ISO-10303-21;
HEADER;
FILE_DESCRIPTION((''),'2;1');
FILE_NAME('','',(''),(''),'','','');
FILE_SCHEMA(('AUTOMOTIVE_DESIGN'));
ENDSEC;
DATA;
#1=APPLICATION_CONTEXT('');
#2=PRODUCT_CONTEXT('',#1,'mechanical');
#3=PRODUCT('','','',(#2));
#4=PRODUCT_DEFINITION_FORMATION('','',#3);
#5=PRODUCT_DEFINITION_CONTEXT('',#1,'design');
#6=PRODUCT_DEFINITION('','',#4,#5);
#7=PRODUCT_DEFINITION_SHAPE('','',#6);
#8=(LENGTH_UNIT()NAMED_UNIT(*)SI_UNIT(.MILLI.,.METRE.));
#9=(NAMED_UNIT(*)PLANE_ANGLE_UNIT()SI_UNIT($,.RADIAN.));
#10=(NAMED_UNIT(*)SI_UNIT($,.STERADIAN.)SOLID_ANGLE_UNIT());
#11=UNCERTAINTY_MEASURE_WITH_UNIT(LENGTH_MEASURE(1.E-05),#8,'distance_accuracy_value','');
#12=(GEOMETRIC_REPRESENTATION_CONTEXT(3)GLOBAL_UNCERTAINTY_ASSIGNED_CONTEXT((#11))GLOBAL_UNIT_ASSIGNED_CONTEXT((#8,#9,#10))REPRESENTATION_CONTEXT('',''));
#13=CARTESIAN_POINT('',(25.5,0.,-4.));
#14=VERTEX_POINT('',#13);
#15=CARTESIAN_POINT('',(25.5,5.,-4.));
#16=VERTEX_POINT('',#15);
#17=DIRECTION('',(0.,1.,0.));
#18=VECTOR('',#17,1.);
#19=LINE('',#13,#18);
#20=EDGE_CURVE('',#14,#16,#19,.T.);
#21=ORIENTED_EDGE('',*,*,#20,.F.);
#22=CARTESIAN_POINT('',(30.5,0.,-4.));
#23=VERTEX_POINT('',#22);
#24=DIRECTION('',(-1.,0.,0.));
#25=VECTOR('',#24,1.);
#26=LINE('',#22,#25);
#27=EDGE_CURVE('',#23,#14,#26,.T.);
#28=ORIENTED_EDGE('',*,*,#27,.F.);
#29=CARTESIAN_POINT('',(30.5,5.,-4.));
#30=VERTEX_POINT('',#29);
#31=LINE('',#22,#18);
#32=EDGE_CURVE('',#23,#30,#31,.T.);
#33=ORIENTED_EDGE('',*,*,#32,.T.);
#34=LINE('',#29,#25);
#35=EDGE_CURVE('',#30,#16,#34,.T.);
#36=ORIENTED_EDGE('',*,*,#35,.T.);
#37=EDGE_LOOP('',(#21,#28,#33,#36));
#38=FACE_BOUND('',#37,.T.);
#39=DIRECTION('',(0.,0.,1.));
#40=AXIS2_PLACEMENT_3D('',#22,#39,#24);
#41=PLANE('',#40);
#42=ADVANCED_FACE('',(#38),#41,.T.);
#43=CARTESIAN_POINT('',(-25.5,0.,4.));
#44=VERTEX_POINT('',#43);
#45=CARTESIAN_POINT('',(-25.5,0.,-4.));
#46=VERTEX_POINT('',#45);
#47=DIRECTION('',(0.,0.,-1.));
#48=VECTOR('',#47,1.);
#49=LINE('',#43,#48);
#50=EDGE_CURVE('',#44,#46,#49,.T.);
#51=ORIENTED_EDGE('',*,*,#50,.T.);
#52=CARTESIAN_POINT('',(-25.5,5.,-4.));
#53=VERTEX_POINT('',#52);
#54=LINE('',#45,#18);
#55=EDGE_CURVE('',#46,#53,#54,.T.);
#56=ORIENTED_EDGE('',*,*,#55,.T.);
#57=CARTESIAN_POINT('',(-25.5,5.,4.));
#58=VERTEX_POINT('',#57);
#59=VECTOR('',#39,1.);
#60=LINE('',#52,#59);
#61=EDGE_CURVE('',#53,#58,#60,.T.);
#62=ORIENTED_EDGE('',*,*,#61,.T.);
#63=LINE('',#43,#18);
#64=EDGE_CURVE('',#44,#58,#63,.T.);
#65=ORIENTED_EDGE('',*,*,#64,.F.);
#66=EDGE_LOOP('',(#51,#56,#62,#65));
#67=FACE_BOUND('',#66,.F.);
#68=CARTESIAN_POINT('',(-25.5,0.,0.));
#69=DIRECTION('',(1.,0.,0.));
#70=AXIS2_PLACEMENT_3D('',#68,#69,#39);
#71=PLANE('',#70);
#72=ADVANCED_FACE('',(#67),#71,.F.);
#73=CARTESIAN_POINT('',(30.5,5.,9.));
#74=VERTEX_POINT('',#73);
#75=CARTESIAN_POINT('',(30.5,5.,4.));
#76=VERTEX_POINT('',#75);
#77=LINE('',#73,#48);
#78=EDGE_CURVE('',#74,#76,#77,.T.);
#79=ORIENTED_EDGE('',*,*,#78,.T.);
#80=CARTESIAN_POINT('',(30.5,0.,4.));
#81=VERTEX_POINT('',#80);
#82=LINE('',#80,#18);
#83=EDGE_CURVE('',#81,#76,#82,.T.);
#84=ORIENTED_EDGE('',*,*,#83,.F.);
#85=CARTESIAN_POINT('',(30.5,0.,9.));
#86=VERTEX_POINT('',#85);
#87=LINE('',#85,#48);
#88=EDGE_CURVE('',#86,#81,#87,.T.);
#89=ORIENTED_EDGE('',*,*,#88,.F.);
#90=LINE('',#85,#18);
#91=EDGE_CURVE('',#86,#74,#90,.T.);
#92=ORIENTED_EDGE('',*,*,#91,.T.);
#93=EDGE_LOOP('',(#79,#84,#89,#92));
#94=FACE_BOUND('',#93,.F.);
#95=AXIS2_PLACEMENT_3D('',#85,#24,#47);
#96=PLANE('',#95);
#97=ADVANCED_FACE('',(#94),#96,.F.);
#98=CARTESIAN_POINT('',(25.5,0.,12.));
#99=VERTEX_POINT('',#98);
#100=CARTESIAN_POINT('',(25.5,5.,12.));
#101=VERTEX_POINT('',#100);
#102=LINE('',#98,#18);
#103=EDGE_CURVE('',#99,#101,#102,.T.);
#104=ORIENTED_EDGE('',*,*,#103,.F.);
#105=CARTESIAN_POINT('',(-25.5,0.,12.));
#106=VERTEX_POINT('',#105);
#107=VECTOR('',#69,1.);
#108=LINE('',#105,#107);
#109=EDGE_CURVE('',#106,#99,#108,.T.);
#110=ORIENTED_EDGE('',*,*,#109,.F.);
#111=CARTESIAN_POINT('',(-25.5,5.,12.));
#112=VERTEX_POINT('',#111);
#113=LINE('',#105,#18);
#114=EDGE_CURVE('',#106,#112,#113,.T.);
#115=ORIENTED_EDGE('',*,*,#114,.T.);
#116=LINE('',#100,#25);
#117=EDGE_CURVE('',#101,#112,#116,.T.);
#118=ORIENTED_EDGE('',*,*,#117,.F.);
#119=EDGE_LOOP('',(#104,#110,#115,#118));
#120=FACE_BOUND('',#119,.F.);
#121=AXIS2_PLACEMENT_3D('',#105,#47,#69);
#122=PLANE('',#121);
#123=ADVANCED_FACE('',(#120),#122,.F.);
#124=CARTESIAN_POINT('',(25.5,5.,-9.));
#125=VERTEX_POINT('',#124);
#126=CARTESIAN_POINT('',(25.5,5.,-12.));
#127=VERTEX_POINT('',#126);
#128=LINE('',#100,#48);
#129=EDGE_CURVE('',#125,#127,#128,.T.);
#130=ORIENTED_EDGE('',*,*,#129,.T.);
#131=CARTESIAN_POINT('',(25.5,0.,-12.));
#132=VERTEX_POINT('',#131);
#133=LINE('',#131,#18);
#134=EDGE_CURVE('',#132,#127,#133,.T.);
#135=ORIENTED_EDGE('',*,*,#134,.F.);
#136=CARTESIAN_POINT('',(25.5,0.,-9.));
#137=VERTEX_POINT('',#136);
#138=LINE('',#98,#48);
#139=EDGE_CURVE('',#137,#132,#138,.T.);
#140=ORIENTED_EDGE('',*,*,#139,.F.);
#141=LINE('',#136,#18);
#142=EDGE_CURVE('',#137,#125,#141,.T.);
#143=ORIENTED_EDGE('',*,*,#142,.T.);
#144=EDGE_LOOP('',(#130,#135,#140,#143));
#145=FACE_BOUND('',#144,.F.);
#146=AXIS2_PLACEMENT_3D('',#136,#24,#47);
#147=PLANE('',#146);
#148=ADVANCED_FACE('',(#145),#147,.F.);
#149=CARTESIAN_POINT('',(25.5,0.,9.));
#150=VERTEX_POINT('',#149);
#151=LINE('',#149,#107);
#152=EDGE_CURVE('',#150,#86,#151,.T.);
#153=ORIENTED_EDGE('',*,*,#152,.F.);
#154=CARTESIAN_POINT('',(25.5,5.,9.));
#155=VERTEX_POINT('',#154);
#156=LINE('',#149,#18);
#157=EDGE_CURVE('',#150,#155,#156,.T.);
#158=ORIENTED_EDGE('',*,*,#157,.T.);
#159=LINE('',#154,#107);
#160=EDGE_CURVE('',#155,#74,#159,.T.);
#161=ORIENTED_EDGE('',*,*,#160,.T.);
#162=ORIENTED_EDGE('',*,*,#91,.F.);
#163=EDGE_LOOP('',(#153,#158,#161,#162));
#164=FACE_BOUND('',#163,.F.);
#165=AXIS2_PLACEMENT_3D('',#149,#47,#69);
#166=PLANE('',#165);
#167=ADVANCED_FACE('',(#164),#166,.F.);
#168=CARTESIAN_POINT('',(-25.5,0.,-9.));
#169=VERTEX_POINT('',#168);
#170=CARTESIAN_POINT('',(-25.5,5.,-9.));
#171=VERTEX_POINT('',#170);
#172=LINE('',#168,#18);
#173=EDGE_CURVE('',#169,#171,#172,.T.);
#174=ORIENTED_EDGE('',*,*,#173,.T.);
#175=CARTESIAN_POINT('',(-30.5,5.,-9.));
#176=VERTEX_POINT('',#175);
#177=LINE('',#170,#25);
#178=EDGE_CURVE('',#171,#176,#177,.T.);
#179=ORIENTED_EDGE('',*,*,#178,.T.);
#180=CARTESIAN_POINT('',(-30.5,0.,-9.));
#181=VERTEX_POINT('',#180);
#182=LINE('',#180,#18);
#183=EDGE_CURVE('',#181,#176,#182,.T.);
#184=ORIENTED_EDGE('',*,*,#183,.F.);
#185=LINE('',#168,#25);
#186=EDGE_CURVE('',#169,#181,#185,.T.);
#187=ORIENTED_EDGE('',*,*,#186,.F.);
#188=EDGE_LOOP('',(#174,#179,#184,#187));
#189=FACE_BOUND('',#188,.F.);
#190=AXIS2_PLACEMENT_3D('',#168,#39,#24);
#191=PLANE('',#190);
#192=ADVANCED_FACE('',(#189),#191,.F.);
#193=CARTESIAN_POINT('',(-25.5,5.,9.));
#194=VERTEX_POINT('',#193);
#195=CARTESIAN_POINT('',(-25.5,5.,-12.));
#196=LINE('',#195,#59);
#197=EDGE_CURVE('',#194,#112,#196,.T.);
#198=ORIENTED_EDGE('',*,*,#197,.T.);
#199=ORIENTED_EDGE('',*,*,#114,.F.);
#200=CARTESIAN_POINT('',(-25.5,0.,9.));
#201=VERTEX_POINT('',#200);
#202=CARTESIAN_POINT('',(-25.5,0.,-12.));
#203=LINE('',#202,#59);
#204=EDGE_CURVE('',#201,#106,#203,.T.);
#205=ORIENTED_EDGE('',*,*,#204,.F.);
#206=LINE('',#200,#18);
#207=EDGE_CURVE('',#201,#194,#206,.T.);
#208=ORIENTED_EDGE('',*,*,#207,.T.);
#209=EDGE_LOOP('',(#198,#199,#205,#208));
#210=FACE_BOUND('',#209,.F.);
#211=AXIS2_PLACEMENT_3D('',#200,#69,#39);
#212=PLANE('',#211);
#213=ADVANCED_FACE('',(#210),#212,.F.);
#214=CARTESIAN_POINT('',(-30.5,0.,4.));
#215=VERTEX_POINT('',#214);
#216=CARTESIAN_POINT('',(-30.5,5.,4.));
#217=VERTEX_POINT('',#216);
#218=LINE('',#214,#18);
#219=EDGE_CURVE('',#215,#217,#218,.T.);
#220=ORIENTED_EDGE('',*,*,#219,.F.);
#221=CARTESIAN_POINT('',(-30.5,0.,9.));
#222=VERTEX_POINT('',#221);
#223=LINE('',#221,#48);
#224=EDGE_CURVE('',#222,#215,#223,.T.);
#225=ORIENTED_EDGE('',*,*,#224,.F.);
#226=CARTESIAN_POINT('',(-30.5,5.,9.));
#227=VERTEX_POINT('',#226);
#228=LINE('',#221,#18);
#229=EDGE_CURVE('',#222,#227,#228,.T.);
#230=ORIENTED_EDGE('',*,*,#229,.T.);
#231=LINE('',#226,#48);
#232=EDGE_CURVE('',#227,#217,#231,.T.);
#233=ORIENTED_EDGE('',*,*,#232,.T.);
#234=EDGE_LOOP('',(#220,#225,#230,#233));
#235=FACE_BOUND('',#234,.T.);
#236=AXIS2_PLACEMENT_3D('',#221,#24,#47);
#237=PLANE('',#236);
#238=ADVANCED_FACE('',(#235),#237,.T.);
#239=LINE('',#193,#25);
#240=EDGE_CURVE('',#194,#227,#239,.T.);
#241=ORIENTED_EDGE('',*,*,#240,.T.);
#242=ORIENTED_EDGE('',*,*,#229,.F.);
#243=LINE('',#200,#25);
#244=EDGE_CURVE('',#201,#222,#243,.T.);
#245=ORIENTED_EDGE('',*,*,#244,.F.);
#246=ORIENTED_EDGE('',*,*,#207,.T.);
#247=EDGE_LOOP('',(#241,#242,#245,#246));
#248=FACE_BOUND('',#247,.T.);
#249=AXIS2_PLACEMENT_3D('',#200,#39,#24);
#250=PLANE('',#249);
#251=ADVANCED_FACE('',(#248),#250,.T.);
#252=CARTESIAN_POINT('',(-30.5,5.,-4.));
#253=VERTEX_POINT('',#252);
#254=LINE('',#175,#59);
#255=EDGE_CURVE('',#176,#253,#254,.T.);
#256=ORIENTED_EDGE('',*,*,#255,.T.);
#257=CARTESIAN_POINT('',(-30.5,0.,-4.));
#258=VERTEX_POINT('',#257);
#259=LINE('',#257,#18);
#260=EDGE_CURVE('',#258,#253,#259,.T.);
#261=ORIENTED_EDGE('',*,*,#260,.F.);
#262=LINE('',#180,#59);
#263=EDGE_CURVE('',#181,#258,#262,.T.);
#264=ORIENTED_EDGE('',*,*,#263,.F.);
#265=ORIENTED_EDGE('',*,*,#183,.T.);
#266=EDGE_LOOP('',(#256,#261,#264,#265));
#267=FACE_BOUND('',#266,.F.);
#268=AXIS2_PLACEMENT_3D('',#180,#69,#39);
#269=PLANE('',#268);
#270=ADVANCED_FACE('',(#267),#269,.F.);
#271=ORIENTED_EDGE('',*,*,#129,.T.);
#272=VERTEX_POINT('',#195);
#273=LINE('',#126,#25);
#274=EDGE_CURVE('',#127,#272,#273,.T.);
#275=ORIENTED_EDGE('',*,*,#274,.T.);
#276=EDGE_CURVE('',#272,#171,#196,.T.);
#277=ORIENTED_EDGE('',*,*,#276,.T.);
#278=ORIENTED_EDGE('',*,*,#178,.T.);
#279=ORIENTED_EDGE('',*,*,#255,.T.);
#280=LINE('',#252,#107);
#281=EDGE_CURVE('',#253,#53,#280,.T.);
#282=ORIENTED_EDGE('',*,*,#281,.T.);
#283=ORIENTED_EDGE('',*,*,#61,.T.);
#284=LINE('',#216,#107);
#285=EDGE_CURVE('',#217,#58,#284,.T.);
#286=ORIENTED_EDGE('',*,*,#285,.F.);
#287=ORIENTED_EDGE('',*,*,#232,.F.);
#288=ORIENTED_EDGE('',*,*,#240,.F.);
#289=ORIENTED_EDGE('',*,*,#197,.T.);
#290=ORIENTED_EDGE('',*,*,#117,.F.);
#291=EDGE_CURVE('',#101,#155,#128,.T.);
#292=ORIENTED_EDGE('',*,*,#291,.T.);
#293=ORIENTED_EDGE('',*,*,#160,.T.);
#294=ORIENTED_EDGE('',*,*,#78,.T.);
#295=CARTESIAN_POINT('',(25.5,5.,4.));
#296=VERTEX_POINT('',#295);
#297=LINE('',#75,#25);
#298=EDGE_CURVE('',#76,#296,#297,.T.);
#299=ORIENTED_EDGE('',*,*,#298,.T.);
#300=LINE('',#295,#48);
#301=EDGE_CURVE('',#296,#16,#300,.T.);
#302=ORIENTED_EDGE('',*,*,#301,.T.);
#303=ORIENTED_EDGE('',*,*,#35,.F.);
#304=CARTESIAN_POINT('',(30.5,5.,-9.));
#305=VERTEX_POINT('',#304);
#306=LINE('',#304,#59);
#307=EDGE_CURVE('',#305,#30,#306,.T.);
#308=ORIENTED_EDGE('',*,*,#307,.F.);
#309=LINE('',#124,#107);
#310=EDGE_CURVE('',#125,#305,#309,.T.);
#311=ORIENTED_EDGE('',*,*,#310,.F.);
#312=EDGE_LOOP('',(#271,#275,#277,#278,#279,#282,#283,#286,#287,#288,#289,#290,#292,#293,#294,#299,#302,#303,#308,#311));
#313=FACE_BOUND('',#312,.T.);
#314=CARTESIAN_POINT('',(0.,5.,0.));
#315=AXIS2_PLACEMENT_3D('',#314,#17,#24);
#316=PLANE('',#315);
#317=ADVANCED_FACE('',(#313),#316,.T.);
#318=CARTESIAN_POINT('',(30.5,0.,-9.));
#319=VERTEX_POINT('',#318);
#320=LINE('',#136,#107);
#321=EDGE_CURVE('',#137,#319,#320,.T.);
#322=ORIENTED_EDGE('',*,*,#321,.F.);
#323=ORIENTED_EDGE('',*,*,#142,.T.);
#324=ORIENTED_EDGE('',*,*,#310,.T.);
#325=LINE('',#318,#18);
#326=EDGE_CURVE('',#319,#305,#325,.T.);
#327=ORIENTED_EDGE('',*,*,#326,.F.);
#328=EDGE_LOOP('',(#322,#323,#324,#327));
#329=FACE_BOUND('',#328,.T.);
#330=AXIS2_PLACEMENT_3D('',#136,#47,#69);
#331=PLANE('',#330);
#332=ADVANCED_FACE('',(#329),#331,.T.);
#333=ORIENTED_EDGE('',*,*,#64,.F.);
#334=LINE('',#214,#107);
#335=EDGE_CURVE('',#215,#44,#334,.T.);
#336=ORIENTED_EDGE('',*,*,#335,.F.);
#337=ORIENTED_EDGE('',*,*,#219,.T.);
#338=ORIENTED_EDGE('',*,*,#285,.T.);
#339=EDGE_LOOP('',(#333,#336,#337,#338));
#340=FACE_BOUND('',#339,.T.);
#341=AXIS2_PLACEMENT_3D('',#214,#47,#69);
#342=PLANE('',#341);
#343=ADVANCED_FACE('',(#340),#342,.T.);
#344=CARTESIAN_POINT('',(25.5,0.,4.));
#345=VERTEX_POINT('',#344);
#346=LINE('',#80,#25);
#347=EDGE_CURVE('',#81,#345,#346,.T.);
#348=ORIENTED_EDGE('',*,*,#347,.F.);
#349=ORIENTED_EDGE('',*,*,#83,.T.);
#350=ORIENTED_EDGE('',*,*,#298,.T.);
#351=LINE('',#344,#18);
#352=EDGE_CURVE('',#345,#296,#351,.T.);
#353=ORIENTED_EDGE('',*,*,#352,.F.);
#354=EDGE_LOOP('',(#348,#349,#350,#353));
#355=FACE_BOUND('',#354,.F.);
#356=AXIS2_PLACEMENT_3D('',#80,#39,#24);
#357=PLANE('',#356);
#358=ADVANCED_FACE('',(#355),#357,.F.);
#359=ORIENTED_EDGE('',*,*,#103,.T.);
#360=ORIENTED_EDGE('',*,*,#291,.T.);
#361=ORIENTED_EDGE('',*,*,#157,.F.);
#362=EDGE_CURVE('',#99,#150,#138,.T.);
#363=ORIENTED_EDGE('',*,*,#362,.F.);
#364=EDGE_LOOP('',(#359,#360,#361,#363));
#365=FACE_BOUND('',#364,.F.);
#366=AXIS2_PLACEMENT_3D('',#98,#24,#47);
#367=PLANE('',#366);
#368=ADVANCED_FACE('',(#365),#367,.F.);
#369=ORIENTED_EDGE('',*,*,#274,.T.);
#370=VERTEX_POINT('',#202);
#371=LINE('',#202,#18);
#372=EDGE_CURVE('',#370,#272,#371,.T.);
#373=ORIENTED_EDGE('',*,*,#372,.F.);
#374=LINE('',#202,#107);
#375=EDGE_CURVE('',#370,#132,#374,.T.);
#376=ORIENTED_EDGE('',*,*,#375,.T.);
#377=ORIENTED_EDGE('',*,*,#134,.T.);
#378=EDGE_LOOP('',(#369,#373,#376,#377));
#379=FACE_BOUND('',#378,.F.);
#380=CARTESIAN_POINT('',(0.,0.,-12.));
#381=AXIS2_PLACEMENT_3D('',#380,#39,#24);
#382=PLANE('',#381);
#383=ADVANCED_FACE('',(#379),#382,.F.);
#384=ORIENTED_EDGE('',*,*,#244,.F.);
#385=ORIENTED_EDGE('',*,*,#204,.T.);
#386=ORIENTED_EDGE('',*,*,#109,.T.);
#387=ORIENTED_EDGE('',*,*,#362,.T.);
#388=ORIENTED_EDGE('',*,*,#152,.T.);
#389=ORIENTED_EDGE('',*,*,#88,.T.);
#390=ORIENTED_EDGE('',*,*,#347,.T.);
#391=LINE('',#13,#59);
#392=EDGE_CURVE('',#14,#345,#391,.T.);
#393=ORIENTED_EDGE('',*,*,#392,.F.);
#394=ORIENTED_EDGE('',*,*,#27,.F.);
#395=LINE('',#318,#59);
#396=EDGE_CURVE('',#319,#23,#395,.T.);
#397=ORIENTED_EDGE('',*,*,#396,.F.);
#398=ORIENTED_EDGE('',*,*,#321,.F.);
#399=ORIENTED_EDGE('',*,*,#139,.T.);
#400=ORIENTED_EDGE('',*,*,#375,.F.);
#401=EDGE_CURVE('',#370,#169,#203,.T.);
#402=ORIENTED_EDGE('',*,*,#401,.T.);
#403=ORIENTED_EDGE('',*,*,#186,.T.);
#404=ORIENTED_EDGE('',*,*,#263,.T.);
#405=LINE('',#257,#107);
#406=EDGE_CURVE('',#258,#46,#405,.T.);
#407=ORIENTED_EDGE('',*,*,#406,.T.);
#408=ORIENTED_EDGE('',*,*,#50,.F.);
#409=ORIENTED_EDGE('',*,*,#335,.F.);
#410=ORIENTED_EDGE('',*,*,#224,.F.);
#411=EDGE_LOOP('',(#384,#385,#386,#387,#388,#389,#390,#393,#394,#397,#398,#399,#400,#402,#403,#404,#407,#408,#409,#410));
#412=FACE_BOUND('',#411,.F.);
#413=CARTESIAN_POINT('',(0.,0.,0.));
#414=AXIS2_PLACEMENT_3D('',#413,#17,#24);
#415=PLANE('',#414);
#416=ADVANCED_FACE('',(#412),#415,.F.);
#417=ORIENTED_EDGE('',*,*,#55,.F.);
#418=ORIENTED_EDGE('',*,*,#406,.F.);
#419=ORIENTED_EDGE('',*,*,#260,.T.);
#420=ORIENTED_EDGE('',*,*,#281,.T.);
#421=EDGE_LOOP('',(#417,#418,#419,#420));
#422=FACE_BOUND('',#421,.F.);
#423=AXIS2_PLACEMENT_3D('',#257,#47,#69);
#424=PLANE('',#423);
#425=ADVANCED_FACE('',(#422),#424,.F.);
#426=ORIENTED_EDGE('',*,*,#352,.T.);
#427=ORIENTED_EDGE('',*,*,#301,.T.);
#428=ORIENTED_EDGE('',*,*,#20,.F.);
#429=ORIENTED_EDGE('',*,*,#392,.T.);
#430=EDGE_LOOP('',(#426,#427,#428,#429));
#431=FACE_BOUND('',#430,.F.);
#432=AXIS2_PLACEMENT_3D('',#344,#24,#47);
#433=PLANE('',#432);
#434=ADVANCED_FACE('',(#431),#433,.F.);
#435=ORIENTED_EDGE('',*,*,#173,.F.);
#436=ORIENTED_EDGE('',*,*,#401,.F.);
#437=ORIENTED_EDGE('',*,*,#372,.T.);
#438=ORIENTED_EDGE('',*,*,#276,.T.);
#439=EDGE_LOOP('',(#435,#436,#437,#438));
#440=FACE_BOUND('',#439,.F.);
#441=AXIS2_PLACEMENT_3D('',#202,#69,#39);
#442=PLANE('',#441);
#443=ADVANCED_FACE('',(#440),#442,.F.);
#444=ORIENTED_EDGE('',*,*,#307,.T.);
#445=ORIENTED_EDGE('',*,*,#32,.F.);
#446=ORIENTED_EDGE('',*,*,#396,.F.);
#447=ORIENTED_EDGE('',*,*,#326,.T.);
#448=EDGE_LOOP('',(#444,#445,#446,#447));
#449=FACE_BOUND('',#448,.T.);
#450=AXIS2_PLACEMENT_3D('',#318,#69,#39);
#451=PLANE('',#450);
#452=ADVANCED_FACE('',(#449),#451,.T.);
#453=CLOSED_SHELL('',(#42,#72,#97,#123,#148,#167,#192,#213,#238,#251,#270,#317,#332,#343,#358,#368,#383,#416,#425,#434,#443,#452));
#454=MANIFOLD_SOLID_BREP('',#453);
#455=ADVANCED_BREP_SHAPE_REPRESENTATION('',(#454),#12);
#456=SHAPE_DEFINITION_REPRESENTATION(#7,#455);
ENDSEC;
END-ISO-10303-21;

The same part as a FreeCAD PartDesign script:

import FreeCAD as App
import Part
import Sketcher

doc = App.newDocument("Part")
body = doc.addObject("PartDesign::Body", "Body")

sketch1 = body.newObject("Sketcher::SketchObject", "Sketch")
sketch1.AttachmentSupport = (doc.getObject("XZ_Plane"), [""])
sketch1.MapMode = "FlatFace"
sketch1.addGeometry(Part.LineSegment(App.Vector(-25.5, 9, 0), App.Vector(-25.5, 12, 0)), False)
sketch1.addGeometry(Part.LineSegment(App.Vector(-25.5, 12, 0), App.Vector(25.5, 12, 0)), False)
sketch1.addGeometry(Part.LineSegment(App.Vector(25.5, 12, 0), App.Vector(25.5, 9, 0)), False)
sketch1.addGeometry(Part.LineSegment(App.Vector(25.5, 9, 0), App.Vector(30.5, 9, 0)), False)
sketch1.addGeometry(Part.LineSegment(App.Vector(30.5, 9, 0), App.Vector(30.5, 4, 0)), False)
sketch1.addGeometry(Part.LineSegment(App.Vector(30.5, 4, 0), App.Vector(25.5, 4, 0)), False)
sketch1.addGeometry(Part.LineSegment(App.Vector(25.5, 4, 0), App.Vector(25.5, -4, 0)), False)
sketch1.addGeometry(Part.LineSegment(App.Vector(25.5, -4, 0), App.Vector(30.5, -4, 0)), False)
sketch1.addGeometry(Part.LineSegment(App.Vector(30.5, -4, 0), App.Vector(30.5, -9, 0)), False)
sketch1.addGeometry(Part.LineSegment(App.Vector(30.5, -9, 0), App.Vector(25.5, -9, 0)), False)
sketch1.addGeometry(Part.LineSegment(App.Vector(25.5, -9, 0), App.Vector(25.5, -12, 0)), False)
sketch1.addGeometry(Part.LineSegment(App.Vector(25.5, -12, 0), App.Vector(-25.5, -12, 0)), False)
sketch1.addGeometry(Part.LineSegment(App.Vector(-25.5, -12, 0), App.Vector(-25.5, -9, 0)), False)
sketch1.addGeometry(Part.LineSegment(App.Vector(-25.5, -9, 0), App.Vector(-30.5, -9, 0)), False)
sketch1.addGeometry(Part.LineSegment(App.Vector(-30.5, -9, 0), App.Vector(-30.5, -4, 0)), False)
sketch1.addGeometry(Part.LineSegment(App.Vector(-30.5, -4, 0), App.Vector(-25.5, -4, 0)), False)
sketch1.addGeometry(Part.LineSegment(App.Vector(-25.5, -4, 0), App.Vector(-25.5, 4, 0)), False)
sketch1.addGeometry(Part.LineSegment(App.Vector(-25.5, 4, 0), App.Vector(-30.5, 4, 0)), False)
sketch1.addGeometry(Part.LineSegment(App.Vector(-30.5, 4, 0), App.Vector(-30.5, 9, 0)), False)
sketch1.addGeometry(Part.LineSegment(App.Vector(-30.5, 9, 0), App.Vector(-25.5, 9, 0)), False)
sketch1.addConstraint(Sketcher.Constraint("Coincident", 0, 2, 1, 1))
sketch1.addConstraint(Sketcher.Constraint("Coincident", 1, 2, 2, 1))
sketch1.addConstraint(Sketcher.Constraint("Coincident", 2, 2, 3, 1))
sketch1.addConstraint(Sketcher.Constraint("Coincident", 3, 2, 4, 1))
sketch1.addConstraint(Sketcher.Constraint("Coincident", 4, 2, 5, 1))
sketch1.addConstraint(Sketcher.Constraint("Coincident", 5, 2, 6, 1))
sketch1.addConstraint(Sketcher.Constraint("Coincident", 6, 2, 7, 1))
sketch1.addConstraint(Sketcher.Constraint("Coincident", 7, 2, 8, 1))
sketch1.addConstraint(Sketcher.Constraint("Coincident", 8, 2, 9, 1))
sketch1.addConstraint(Sketcher.Constraint("Coincident", 9, 2, 10, 1))
sketch1.addConstraint(Sketcher.Constraint("Coincident", 10, 2, 11, 1))
sketch1.addConstraint(Sketcher.Constraint("Coincident", 11, 2, 12, 1))
sketch1.addConstraint(Sketcher.Constraint("Coincident", 12, 2, 13, 1))
sketch1.addConstraint(Sketcher.Constraint("Coincident", 13, 2, 14, 1))
sketch1.addConstraint(Sketcher.Constraint("Coincident", 14, 2, 15, 1))
sketch1.addConstraint(Sketcher.Constraint("Coincident", 15, 2, 16, 1))
sketch1.addConstraint(Sketcher.Constraint("Coincident", 16, 2, 17, 1))
sketch1.addConstraint(Sketcher.Constraint("Coincident", 17, 2, 18, 1))
sketch1.addConstraint(Sketcher.Constraint("Coincident", 18, 2, 19, 1))
sketch1.addConstraint(Sketcher.Constraint("Coincident", 19, 2, 0, 1))
sketch1.addConstraint(Sketcher.Constraint("Vertical", 0))
sketch1.addConstraint(Sketcher.Constraint("Horizontal", 1))
sketch1.addConstraint(Sketcher.Constraint("Vertical", 2))
sketch1.addConstraint(Sketcher.Constraint("Horizontal", 3))
sketch1.addConstraint(Sketcher.Constraint("Vertical", 4))
sketch1.addConstraint(Sketcher.Constraint("Horizontal", 5))
sketch1.addConstraint(Sketcher.Constraint("Vertical", 6))
sketch1.addConstraint(Sketcher.Constraint("Horizontal", 7))
sketch1.addConstraint(Sketcher.Constraint("Vertical", 8))
sketch1.addConstraint(Sketcher.Constraint("Horizontal", 9))
sketch1.addConstraint(Sketcher.Constraint("Vertical", 10))
sketch1.addConstraint(Sketcher.Constraint("Horizontal", 11))
sketch1.addConstraint(Sketcher.Constraint("Vertical", 12))
sketch1.addConstraint(Sketcher.Constraint("Horizontal", 13))
sketch1.addConstraint(Sketcher.Constraint("Vertical", 14))
sketch1.addConstraint(Sketcher.Constraint("Horizontal", 15))
sketch1.addConstraint(Sketcher.Constraint("Vertical", 16))
sketch1.addConstraint(Sketcher.Constraint("Horizontal", 17))
sketch1.addConstraint(Sketcher.Constraint("Vertical", 18))
sketch1.addConstraint(Sketcher.Constraint("Horizontal", 19))
sketch1.addConstraint(Sketcher.Constraint("Symmetric", 0, 2, 10, 2, -1, 1))
sketch1.addConstraint(Sketcher.Constraint("Symmetric", 2, 2, 12, 2, -1, 1))
sketch1.addConstraint(Sketcher.Constraint("Symmetric", 4, 2, 14, 2, -1, 1))
sketch1.addConstraint(Sketcher.Constraint("Symmetric", 6, 2, 16, 2, -1, 1))
sketch1.addConstraint(Sketcher.Constraint("Symmetric", 8, 2, 18, 2, -1, 1))
sketch1.addConstraint(Sketcher.Constraint("Symmetric", 9, 2, 12, 2, -2))
sketch1.addConstraint(Sketcher.Constraint("Symmetric", 7, 2, 14, 2, -2))
sketch1.addConstraint(Sketcher.Constraint("Vertical", 2, 2, 5, 2))
sketch1.addConstraint(Sketcher.Constraint("Equal", 19, 4))
sketch1.addConstraint(Sketcher.Constraint("DistanceX", 1, 1, 1, 2, 51.0))
sketch1.addConstraint(Sketcher.Constraint("DistanceX", 3, 1, 3, 2, 5.0))
sketch1.addConstraint(Sketcher.Constraint("DistanceY", -1, 1, 4, 2, 4.0))
sketch1.addConstraint(Sketcher.Constraint("DistanceY", 11, 2, 0, 2, 24.0))
pad1 = body.newObject("PartDesign::Pad", "Pad")
pad1.Profile = sketch1
pad1.Length = 5
pad1.Reversed = True

doc.recompute()
